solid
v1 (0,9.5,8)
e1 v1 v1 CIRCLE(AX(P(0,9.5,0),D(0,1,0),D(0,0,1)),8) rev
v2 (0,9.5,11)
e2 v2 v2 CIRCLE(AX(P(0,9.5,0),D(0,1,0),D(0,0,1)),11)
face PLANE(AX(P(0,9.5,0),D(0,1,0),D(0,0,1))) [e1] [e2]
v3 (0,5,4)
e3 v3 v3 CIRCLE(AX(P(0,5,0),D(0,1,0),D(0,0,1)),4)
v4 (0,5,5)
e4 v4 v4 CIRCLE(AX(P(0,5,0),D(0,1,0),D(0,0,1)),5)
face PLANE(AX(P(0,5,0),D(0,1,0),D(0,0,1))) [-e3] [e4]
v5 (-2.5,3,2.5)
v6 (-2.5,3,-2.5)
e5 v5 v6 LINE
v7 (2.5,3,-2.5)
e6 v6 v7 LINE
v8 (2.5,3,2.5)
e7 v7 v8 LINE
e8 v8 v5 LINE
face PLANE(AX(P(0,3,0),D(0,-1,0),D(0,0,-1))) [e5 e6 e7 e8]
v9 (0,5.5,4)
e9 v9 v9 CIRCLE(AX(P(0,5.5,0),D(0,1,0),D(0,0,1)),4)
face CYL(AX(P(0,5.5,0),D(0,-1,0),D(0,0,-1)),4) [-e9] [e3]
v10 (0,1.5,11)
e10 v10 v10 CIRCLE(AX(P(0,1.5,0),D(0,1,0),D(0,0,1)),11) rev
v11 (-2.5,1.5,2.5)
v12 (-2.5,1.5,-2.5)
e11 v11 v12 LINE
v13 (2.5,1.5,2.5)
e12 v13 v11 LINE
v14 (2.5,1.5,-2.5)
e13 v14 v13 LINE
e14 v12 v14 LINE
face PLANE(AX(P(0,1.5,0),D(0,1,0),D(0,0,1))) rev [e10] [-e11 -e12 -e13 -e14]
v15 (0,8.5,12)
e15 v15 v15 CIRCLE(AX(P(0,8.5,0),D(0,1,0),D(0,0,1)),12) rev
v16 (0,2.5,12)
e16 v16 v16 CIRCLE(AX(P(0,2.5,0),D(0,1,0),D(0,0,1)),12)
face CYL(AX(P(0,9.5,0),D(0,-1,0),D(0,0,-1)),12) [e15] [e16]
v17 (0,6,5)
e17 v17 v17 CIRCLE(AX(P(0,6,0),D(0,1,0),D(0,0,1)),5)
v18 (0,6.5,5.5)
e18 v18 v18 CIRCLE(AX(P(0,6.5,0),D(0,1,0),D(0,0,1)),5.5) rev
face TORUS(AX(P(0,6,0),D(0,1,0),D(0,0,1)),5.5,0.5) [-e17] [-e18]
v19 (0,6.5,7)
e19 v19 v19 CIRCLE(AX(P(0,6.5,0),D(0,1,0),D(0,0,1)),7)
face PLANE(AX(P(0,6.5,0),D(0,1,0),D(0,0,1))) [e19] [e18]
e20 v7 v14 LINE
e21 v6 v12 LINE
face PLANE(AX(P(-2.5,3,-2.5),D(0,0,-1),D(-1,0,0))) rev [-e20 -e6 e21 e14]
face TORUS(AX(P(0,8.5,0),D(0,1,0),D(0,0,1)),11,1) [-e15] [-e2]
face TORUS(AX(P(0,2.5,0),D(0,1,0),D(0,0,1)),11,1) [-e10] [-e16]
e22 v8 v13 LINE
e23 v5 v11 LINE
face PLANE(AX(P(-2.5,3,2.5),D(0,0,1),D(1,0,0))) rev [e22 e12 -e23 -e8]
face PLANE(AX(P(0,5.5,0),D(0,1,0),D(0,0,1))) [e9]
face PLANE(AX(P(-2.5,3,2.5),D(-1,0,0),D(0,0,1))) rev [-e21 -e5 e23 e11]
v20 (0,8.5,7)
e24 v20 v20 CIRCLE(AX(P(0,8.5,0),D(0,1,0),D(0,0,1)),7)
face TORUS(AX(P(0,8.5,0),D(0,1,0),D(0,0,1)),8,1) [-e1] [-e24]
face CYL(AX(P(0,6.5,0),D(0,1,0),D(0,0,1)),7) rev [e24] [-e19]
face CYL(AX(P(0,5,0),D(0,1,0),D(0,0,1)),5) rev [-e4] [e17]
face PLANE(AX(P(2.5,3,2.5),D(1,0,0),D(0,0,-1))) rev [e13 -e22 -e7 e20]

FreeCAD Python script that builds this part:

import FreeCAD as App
import Part
import Sketcher
from FreeCAD import Vector
Q = App.Units.Quantity


def edges_at(feature, points):
    """Names of the edges that pass closest to the given points."""
    edges = feature.Shape.Edges
    near = lambda p: min(range(len(edges)), key=lambda i: edges[i].distToShape(Part.Vertex(*p))[0])
    return sorted({f"Edge{near(p) + 1}" for p in points})


def add_polygon(sketch, points):
    """Adds a closed chain of lines whose ends are joined by coincident constraints."""
    first, n = sketch.GeometryCount, len(points)
    for a, b in zip(points, points[1:] + points[:1]):
        sketch.addGeometry(Part.LineSegment(App.Vector(*a, 0), App.Vector(*b, 0)), False)
    for i in range(n):
        sketch.addConstraint(Sketcher.Constraint("Coincident", first + i, 2, first + (i + 1) % n, 1))

doc = App.newDocument("Part")
body = doc.addObject("PartDesign::Body", "Body")

# Sketch on XZ plane
sketch1 = body.newObject("Sketcher::SketchObject", "Sketch")
sketch1.AttachmentSupport = (doc.getObject("XZ_Plane"), [""])
sketch1.MapMode = "FlatFace"
add_polygon(sketch1, [(-20, -8), (-20, 8), (20, 8), (20, -8)])  # lines 0-3
sketch1.addConstraint(Sketcher.Constraint("Vertical", 0))
sketch1.addConstraint(Sketcher.Constraint("Horizontal", 1))
sketch1.addConstraint(Sketcher.Constraint("Vertical", 2))
sketch1.addConstraint(Sketcher.Constraint("Horizontal", 3))
sketch1.addConstraint(Sketcher.Constraint("Symmetric", 0, 2, 2, 2, -1, 1))
sketch1.addConstraint(Sketcher.Constraint("DistanceX", 1, 1, 1, 2, Q("40 mm")))
sketch1.addConstraint(Sketcher.Constraint("DistanceY", 0, 1, 0, 2, Q("15 mm")))
pad1 = body.newObject("PartDesign::Pad", "Pad")
pad1.Profile = sketch1
pad1.Length = 1.5
pad1.Reversed = True

# Sketch on XZ plane
sketch2 = body.newObject("Sketcher::SketchObject", "Sketch001")
sketch2.AttachmentSupport = (doc.getObject("XZ_Plane"), [""])
sketch2.MapMode = "FlatFace"
sketch2.AttachmentOffset = App.Placement(Vector(0, 0, -1.5), App.Rotation())
sketch2.addGeometry(Part.Circle(Vector(0, 0, 0), Vector(0, 0, 1), 12), False)
sketch2.addConstraint(Sketcher.Constraint("Coincident", 0, 3, -1, 1))
sketch2.addConstraint(Sketcher.Constraint("Diameter", 0, Q("24 mm")))
pad2 = body.newObject("PartDesign::Pad", "Pad001")
pad2.Profile = sketch2
pad2.Length = 8
pad2.Reversed = True

# Sketch on XZ plane
sketch3 = body.newObject("Sketcher::SketchObject", "Sketch002")
sketch3.AttachmentSupport = (doc.getObject("XZ_Plane"), [""])
sketch3.MapMode = "FlatFace"
sketch3.AttachmentOffset = App.Placement(Vector(0, 0, -9.5), App.Rotation())
sketch3.addGeometry(Part.Circle(Vector(0, 0, 0), Vector(0, 0, 1), 7), False)
sketch3.addGeometry(Part.Circle(Vector(0, 0, 0), Vector(0, 0, 1), 5), False)
sketch3.addConstraint(Sketcher.Constraint("Coincident", 0, 3, -1, 1))
sketch3.addConstraint(Sketcher.Constraint("Coincident", 1, 3, -1, 1))
sketch3.addConstraint(Sketcher.Constraint("Diameter", 0, Q("14 mm")))
sketch3.addConstraint(Sketcher.Constraint("Diameter", 1, Q("10 mm")))
pocket1 = body.newObject("PartDesign::Pocket", "Pocket")
pocket1.Profile = sketch3
pocket1.Length = 3
pocket1.Reversed = True

# Sketch on XZ plane
sketch4 = body.newObject("Sketcher::SketchObject", "Sketch003")
sketch4.AttachmentSupport = (doc.getObject("XZ_Plane"), [""])
sketch4.MapMode = "FlatFace"
sketch4.AttachmentOffset = App.Placement(Vector(0, 0, -9.5), App.Rotation())
sketch4.addGeometry(Part.Circle(Vector(0, 0, 0), Vector(0, 0, 1), 5), False)
sketch4.addConstraint(Sketcher.Constraint("Coincident", 0, 3, -1, 1))
sketch4.addConstraint(Sketcher.Constraint("Diameter", 0, Q("10 mm")))
pocket2 = body.newObject("PartDesign::Pocket", "Pocket001")
pocket2.Profile = sketch4
pocket2.Length = 4.5
pocket2.Reversed = True

# Sketch on XZ plane
sketch5 = body.newObject("Sketcher::SketchObject", "Sketch004")
sketch5.AttachmentSupport = (doc.getObject("XZ_Plane"), [""])
sketch5.MapMode = "FlatFace"
sketch5.AttachmentOffset = App.Placement(Vector(0, 0, -5), App.Rotation())
sketch5.addGeometry(Part.Circle(Vector(0, 0, 0), Vector(0, 0, 1), 4), False)
sketch5.addConstraint(Sketcher.Constraint("Coincident", 0, 3, -1, 1))
sketch5.addConstraint(Sketcher.Constraint("Diameter", 0, Q("8 mm")))
pad3 = body.newObject("PartDesign::Pad", "Pad002")
pad3.Profile = sketch5
pad3.Length = 0.5
pad3.Reversed = True
doc.recompute()

fillet = body.newObject("PartDesign::Fillet", "Fillet")
fillet.Base = (pad3, edges_at(pad3, [(-12, 9.5, 0), (-7, 9.5, 0)]))
fillet.Radius = 1
doc.recompute()

fillet2 = body.newObject("PartDesign::Fillet", "Fillet001")
fillet2.Base = (fillet, edges_at(fillet, [(-5, 6.5, 0)]))
fillet2.Radius = 0.5

# Sketch on YZ plane
sketch6 = body.newObject("Sketcher::SketchObject", "Sketch005")
sketch6.AttachmentSupport = (doc.getObject("YZ_Plane"), [""])
sketch6.MapMode = "FlatFace"
sketch6.AttachmentOffset = App.Placement(Vector(0, 0, 20), App.Rotation())
add_polygon(sketch6, [(1.5, 7.5), (0, 7.5), (0, -7.5), (1.5, -7.5)])  # lines 0-3
sketch6.addConstraint(Sketcher.Constraint("Horizontal", 0))
sketch6.addConstraint(Sketcher.Constraint("Vertical", 1))
sketch6.addConstraint(Sketcher.Constraint("Horizontal", 2))
sketch6.addConstraint(Sketcher.Constraint("Vertical", 3))
sketch6.addConstraint(Sketcher.Constraint("Symmetric", 0, 2, 1, 2, -1, 1))
sketch6.addConstraint(Sketcher.Constraint("DistanceY", 1, 2, 1, 1, Q("15 mm")))
sketch6.addConstraint(Sketcher.Constraint("DistanceX", 0, 2, 0, 1, Q("1.5 mm")))
pocket3 = body.newObject("PartDesign::Pocket", "Pocket002")
pocket3.Profile = sketch6
pocket3.Type = "ThroughAll"
doc.recompute()

fillet3 = body.newObject("PartDesign::Fillet", "Fillet002")
fillet3.Base = (pocket3, edges_at(pocket3, [(-12, 1.5, 0)]))
fillet3.Radius = 1

# Sketch on XZ plane
sketch7 = body.newObject("Sketcher::SketchObject", "Sketch006")
sketch7.AttachmentSupport = (doc.getObject("XZ_Plane"), [""])
sketch7.MapMode = "FlatFace"
sketch7.AttachmentOffset = App.Placement(Vector(0, 0, -1.5), App.Rotation())
add_polygon(sketch7, [(-2, 2), (-2, -2), (2, -2), (2, 2)])  # lines 0-3
sketch7.addConstraint(Sketcher.Constraint("Vertical", 0))
sketch7.addConstraint(Sketcher.Constraint("Horizontal", 1))
sketch7.addConstraint(Sketcher.Constraint("Vertical", 2))
sketch7.addConstraint(Sketcher.Constraint("Horizontal", 3))
sketch7.addConstraint(Sketcher.Constraint("Symmetric", 0, 2, 2, 2, -1, 1))
sketch7.addConstraint(Sketcher.Constraint("Equal", 3, 0))
sketch7.addConstraint(Sketcher.Constraint("DistanceX", 1, 1, 1, 2, Q("5 mm")))
pocket4 = body.newObject("PartDesign::Pocket", "Pocket003")
pocket4.Profile = sketch7
pocket4.Length = 1.5

doc.recompute()
